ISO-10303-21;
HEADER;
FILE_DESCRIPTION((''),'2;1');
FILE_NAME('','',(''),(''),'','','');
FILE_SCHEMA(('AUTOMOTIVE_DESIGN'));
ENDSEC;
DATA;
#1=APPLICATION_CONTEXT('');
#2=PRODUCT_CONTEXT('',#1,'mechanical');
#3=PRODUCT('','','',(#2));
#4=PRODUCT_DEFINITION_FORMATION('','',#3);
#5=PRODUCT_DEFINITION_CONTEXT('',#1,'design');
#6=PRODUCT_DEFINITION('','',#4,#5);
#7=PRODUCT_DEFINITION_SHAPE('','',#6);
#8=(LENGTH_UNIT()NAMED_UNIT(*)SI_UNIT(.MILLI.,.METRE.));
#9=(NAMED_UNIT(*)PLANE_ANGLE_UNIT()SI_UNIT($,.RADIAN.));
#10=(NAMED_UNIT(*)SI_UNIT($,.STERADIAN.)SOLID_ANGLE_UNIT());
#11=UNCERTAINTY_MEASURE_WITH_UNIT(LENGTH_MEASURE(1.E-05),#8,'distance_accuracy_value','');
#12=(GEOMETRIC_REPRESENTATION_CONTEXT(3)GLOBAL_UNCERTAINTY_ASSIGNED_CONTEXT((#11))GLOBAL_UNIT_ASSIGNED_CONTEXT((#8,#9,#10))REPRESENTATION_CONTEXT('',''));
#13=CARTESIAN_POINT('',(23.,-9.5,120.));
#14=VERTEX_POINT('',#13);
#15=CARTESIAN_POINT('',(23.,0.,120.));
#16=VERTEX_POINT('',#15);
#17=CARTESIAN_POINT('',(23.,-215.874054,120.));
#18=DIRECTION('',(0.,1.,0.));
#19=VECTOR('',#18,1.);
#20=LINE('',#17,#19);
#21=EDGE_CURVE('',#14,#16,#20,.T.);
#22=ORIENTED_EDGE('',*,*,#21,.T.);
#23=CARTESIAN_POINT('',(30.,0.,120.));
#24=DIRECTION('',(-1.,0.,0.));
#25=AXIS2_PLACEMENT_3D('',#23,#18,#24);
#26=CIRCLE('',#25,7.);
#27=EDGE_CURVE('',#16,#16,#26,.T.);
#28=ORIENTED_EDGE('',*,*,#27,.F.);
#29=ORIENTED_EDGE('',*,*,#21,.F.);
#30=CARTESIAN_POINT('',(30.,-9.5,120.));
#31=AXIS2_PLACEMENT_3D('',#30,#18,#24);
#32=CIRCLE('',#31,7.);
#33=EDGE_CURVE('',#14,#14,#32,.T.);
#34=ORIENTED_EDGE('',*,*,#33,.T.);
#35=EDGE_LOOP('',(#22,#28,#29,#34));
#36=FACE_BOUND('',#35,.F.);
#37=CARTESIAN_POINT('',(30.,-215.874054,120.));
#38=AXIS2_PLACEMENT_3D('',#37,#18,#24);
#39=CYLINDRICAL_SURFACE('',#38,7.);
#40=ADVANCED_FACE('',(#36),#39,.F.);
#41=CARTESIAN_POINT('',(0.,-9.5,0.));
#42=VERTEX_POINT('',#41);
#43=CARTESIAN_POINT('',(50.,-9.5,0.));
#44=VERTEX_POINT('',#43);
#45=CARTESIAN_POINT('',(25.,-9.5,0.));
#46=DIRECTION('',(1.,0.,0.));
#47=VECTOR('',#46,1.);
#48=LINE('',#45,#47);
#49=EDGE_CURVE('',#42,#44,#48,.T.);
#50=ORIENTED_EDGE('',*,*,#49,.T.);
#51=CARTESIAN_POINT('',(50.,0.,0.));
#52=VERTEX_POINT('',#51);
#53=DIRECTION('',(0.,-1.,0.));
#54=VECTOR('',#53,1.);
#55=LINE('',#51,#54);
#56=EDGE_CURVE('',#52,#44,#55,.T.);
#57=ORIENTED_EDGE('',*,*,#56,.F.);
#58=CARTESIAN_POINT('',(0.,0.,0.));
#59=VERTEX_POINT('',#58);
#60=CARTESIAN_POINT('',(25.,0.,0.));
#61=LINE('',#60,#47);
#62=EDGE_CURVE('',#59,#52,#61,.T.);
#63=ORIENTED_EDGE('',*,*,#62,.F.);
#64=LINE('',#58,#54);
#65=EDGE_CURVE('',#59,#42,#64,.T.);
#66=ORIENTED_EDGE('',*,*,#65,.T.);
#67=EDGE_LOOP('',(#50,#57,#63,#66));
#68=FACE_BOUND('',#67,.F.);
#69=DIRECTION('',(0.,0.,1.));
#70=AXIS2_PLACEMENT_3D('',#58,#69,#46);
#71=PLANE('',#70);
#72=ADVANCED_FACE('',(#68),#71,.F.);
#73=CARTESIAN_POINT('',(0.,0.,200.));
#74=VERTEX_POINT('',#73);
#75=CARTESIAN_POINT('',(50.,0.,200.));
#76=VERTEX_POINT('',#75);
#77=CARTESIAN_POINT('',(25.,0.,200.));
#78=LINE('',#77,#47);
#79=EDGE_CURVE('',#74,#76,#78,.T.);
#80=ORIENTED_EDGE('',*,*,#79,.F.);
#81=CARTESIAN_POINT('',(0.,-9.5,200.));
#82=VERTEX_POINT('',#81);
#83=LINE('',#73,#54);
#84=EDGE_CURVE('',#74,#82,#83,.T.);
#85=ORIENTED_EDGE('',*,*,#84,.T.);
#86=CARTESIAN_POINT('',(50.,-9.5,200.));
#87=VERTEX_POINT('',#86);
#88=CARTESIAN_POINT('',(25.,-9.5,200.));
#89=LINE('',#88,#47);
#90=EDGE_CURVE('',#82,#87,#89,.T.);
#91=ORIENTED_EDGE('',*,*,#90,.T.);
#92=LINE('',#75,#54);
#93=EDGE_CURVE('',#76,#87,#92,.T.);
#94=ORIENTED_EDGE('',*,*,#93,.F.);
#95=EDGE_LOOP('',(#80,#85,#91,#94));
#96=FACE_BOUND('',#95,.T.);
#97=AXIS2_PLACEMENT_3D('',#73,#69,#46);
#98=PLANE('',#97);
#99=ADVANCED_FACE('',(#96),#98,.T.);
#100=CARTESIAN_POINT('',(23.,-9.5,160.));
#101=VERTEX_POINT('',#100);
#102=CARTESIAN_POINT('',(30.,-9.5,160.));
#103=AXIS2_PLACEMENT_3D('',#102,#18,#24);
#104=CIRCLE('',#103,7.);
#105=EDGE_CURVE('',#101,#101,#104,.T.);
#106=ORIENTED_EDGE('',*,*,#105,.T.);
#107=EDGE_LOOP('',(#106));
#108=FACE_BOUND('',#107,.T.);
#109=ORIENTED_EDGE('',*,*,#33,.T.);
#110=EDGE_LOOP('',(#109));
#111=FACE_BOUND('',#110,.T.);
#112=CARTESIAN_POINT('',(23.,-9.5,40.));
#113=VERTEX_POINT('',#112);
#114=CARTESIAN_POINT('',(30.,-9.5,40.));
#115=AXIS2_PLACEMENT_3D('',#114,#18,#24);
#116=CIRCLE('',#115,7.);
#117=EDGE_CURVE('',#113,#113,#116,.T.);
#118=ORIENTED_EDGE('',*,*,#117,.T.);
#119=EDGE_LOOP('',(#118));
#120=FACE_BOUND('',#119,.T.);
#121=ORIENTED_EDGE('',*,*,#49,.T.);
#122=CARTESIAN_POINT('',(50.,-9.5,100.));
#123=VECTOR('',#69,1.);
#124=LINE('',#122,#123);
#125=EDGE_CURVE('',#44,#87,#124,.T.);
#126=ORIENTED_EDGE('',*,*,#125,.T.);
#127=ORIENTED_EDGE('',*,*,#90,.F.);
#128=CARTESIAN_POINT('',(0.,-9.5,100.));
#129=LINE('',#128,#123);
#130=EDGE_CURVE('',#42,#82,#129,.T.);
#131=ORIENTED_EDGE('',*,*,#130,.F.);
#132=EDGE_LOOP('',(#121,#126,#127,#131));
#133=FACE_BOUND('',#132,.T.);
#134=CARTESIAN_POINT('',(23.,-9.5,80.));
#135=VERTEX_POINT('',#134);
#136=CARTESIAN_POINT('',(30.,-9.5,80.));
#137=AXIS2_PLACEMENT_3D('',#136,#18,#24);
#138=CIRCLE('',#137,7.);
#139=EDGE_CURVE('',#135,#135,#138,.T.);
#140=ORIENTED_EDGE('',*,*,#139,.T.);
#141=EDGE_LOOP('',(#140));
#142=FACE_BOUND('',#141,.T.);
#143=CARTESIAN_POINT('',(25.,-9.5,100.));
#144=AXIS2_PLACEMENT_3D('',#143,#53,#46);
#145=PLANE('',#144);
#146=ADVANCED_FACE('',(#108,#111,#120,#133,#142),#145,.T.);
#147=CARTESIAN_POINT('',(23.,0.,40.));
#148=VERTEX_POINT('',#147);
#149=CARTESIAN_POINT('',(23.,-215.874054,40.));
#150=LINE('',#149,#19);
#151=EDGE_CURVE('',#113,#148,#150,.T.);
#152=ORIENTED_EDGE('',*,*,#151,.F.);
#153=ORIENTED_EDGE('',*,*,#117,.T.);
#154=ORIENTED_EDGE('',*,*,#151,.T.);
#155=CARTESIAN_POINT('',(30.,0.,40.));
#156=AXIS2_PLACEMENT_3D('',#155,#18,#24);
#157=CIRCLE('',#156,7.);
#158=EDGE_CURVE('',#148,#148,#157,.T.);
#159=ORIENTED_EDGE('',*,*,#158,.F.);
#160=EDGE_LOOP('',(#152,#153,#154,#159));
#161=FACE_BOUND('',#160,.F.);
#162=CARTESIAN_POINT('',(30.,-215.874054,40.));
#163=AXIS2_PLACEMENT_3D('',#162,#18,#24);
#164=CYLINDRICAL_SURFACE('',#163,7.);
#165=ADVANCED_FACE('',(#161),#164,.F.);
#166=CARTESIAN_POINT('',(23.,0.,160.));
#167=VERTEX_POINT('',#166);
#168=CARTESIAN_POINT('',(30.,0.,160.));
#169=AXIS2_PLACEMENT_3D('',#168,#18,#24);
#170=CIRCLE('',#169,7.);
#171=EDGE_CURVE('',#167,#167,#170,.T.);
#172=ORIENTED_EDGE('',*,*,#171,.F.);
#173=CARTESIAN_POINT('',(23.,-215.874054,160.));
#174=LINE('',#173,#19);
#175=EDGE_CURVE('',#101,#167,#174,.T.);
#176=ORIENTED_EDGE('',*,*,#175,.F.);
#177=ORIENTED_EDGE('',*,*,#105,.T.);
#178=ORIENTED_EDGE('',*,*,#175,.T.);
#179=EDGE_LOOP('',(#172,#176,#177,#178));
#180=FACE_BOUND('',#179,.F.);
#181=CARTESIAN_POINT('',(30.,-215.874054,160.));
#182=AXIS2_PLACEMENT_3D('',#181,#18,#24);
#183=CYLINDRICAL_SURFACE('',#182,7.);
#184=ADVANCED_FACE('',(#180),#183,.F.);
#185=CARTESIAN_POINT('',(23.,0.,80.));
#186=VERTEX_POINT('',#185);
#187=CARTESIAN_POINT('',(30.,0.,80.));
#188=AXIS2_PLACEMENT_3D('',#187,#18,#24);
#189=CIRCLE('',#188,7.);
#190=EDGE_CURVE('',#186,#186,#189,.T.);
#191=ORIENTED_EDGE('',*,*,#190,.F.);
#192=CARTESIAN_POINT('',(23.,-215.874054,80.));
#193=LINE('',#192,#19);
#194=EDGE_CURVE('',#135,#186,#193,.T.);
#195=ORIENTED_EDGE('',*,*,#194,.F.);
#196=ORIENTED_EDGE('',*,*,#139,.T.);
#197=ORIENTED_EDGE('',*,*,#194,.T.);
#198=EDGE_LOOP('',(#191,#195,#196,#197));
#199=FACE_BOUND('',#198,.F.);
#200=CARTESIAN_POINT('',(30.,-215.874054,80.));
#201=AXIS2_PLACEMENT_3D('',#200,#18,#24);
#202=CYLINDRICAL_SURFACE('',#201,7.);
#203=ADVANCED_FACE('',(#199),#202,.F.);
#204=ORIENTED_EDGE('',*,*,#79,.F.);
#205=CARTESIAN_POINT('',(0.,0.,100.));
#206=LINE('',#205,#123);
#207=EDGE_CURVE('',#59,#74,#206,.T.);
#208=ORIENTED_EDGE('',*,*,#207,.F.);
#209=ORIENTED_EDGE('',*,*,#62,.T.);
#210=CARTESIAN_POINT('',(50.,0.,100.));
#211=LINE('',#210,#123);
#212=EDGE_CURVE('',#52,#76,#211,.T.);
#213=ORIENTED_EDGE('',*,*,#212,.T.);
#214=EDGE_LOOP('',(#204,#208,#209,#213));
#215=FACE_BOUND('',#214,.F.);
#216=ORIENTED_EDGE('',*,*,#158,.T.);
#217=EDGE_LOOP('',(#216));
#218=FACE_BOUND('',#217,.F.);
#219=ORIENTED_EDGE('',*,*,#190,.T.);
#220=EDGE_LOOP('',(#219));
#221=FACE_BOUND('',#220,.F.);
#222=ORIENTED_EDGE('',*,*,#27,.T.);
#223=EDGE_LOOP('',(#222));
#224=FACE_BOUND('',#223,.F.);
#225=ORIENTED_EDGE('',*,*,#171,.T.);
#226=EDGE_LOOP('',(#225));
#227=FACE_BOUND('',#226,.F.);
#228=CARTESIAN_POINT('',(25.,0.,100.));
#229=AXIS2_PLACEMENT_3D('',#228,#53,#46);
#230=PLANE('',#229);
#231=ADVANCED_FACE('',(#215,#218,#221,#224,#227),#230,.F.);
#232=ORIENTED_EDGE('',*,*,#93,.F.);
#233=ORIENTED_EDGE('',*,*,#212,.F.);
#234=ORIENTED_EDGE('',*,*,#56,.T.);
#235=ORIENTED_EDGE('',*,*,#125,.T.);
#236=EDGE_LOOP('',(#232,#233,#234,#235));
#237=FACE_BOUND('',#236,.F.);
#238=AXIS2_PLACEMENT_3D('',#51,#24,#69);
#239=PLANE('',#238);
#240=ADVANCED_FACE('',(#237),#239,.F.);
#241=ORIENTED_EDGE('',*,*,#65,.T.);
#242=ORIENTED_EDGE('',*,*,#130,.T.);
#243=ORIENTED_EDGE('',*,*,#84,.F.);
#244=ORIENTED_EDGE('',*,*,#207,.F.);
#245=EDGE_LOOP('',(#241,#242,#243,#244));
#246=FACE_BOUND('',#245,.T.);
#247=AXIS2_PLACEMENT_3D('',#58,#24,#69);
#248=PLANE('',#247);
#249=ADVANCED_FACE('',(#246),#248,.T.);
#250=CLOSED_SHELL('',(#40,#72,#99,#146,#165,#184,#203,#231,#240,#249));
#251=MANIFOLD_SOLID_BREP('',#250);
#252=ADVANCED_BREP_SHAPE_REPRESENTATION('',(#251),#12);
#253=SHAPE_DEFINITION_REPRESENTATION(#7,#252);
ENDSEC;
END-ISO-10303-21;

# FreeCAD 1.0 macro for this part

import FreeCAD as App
import Part
import Sketcher

V = App.Vector
Q = App.Units.Quantity


def add_polygon(sketch, points):
    """Adds a closed chain of lines whose ends are joined by coincident constraints."""
    first, n = sketch.GeometryCount, len(points)
    for a, b in zip(points, points[1:] + points[:1]):
        sketch.addGeometry(Part.LineSegment(App.Vector(*a, 0), App.Vector(*b, 0)), False)
    for i in range(n):
        sketch.addConstraint(Sketcher.Constraint("Coincident", first + i, 2, first + (i + 1) % n, 1))

doc = App.newDocument("Part")
params = doc.addObject("Spreadsheet::Sheet", "Params")
for row, (alias, value) in enumerate([
    ("sketch1_width", "50 mm"),
    ("sketch1_height", "200 mm"),
    ("pad1_length", "9.5 mm"),
    ("sketch2_diameter", "14 mm"),
    ("hole_diameter", "14 mm"),
], start=1):
    params.set(f"A{row}", alias)
    params.set(f"B{row}", "=" + value)
    params.setAlias(f"B{row}", alias)

body = doc.addObject("PartDesign::Body", "Body")

# Sketch on XZ plane
sketch1 = body.newObject("Sketcher::SketchObject", "Sketch")
sketch1.AttachmentSupport = (doc.getObject("XZ_Plane"), [""])
sketch1.MapMode = "FlatFace"
add_polygon(sketch1, [(0, 200), (0, 0), (50, 0), (50, 200)])  # lines 0-3
sketch1.addConstraint(Sketcher.Constraint("Vertical", 0))
sketch1.addConstraint(Sketcher.Constraint("Horizontal", 1))
sketch1.addConstraint(Sketcher.Constraint("Vertical", 2))
sketch1.addConstraint(Sketcher.Constraint("Horizontal", 3))
sketch1.addConstraint(Sketcher.Constraint("Coincident", 0, 2, -1, 1))
sketch1.addConstraint(Sketcher.Constraint("DistanceX", 1, 1, 1, 2, Q("50 mm")))
sketch1.addConstraint(Sketcher.Constraint("DistanceY", 0, 2, 0, 1, Q("200 mm")))
sketch1.setExpression("Constraints[9]", "Params.sketch1_width")
sketch1.setExpression("Constraints[10]", "Params.sketch1_height")
pad1 = body.newObject("PartDesign::Pad", "Pad")
pad1.Profile = sketch1
pad1.setExpression("Length", "Params.pad1_length")

# Sketch on XZ plane
sketch2 = body.newObject("Sketcher::SketchObject", "Sketch001")
sketch2.AttachmentSupport = (doc.getObject("XZ_Plane"), [""])
sketch2.MapMode = "FlatFace"
sketch2.AttachmentOffset = App.Placement(V(0, 0, 9.5), App.Rotation())
sketch2.addGeometry(Part.Circle(V(30, 160, 0), V(0, 0, 1), 7), False)
sketch2.addGeometry(Part.Circle(V(30, 120, 0), V(0, 0, 1), 7), False)
sketch2.addGeometry(Part.Circle(V(30, 80, 0), V(0, 0, 1), 7), False)
sketch2.addGeometry(Part.Circle(V(30, 40, 0), V(0, 0, 1), 7), False)
sketch2.addConstraint(Sketcher.Constraint("Equal", 0, 1))
sketch2.addConstraint(Sketcher.Constraint("Equal", 1, 2))
sketch2.addConstraint(Sketcher.Constraint("Equal", 2, 3))
sketch2.addConstraint(Sketcher.Constraint("Vertical", 0, 3, 1, 3))
sketch2.addConstraint(Sketcher.Constraint("Vertical", 1, 3, 2, 3))
sketch2.addConstraint(Sketcher.Constraint("Vertical", 2, 3, 3, 3))
sketch2.addConstraint(Sketcher.Constraint("Diameter", 0, Q("14 mm")))
sketch2.addConstraint(Sketcher.Constraint("DistanceX", -1, 1, 0, 3, Q("30 mm")))
sketch2.addConstraint(Sketcher.Constraint("DistanceY", -1, 1, 0, 3, Q("160 mm")))
sketch2.addConstraint(Sketcher.Constraint("DistanceY", -1, 1, 1, 3, Q("120 mm")))
sketch2.addConstraint(Sketcher.Constraint("DistanceY", -1, 1, 2, 3, Q("80 mm")))
sketch2.addConstraint(Sketcher.Constraint("DistanceY", -1, 1, 3, 3, Q("40 mm")))
sketch2.setExpression("Constraints[6]", "Params.sketch2_diameter")
doc.recompute()
hole = body.newObject("PartDesign::Hole", "Hole")
hole.Profile = sketch2
hole.ThreadType = "None"
hole.setExpression("Diameter", "Params.hole_diameter")
hole.DepthType = "ThroughAll"

doc.recompute()
